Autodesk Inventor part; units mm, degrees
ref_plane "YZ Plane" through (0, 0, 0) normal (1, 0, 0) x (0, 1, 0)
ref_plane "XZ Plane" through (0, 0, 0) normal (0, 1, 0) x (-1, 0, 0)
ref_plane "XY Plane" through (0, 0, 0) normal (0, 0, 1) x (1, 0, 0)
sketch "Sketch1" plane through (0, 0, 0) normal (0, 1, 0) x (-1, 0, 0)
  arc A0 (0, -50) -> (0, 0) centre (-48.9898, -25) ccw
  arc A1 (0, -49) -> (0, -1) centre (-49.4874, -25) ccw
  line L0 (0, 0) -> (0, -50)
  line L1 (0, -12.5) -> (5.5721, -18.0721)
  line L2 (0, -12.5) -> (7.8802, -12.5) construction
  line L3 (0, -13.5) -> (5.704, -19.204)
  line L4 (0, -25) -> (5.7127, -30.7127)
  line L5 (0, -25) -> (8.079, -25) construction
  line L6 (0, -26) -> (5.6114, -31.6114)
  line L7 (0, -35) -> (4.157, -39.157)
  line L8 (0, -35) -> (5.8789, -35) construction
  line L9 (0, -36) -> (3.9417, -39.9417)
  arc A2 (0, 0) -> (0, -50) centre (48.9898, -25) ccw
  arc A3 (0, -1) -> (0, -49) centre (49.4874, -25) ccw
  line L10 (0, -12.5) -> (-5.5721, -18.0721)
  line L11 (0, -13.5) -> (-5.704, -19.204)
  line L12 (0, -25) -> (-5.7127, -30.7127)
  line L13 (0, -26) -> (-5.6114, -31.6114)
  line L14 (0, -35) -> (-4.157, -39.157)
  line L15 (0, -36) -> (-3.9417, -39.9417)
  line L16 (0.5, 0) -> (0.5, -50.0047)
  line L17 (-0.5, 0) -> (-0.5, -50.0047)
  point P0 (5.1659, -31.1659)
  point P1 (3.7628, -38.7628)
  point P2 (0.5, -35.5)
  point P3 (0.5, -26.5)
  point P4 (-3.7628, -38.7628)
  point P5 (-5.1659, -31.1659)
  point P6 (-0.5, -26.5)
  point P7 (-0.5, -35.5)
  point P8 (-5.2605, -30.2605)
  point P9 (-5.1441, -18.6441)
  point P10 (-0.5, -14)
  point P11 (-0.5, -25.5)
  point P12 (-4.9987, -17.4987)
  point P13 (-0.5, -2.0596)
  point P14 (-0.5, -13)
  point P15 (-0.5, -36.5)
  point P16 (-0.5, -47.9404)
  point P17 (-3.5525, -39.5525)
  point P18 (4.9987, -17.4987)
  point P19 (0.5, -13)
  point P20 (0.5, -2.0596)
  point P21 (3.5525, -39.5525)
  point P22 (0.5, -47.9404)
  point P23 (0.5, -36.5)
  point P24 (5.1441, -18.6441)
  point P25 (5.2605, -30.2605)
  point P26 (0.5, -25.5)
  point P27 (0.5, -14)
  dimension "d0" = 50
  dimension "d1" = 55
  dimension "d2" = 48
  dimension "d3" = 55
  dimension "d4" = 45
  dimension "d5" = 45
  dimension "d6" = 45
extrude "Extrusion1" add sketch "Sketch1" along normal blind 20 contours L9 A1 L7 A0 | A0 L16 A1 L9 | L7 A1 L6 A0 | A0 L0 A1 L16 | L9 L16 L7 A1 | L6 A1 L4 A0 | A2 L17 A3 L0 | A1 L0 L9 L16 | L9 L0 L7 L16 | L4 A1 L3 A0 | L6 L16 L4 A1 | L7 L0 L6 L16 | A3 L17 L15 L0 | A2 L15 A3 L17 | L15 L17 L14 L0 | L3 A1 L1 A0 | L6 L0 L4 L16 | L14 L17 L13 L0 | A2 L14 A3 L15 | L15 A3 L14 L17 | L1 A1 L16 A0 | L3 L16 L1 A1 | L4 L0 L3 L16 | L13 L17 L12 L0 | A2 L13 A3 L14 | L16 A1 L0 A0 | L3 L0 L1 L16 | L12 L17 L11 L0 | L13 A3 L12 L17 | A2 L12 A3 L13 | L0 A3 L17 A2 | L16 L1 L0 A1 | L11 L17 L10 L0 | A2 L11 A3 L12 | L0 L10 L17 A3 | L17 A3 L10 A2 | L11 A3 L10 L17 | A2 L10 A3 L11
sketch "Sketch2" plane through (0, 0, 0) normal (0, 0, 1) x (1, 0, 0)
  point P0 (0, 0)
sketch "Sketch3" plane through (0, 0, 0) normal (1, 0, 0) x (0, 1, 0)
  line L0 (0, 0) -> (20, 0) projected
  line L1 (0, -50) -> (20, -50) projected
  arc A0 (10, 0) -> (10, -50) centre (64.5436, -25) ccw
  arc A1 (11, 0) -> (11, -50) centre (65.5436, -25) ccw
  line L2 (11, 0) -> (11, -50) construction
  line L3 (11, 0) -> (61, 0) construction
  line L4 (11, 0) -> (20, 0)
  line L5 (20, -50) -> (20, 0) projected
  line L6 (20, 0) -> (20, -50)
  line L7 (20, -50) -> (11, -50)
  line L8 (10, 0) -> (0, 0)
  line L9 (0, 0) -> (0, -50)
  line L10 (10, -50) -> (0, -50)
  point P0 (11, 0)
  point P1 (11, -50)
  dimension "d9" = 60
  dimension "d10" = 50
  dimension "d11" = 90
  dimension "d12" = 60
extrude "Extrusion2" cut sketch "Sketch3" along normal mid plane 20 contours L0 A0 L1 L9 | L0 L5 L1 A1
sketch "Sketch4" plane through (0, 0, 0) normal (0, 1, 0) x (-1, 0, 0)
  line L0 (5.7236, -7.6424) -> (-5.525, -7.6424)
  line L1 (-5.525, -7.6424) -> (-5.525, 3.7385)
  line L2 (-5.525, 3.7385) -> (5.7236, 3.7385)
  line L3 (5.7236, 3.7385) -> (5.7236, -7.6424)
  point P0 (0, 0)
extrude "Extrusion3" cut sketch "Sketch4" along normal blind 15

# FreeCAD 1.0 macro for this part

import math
import FreeCAD as App
import Part
import Sketcher
Q = App.Units.Quantity


def add_polygon(sketch, points):
    """Adds a closed chain of lines whose ends are joined by coincident constraints."""
    first, n = sketch.GeometryCount, len(points)
    for a, b in zip(points, points[1:] + points[:1]):
        sketch.addGeometry(Part.LineSegment(App.Vector(*a, 0), App.Vector(*b, 0)), False)
    for i in range(n):
        sketch.addConstraint(Sketcher.Constraint("Coincident", first + i, 2, first + (i + 1) % n, 1))

doc = App.newDocument("Part")
body = doc.addObject("PartDesign::Body", "Body")

# Sketch on XZ plane
sketch1 = doc.addObject("Sketcher::SketchObject", "Sketch")
body.addObject(sketch1)
sketch1.AttachmentSupport = (doc.XZ_Plane, [""])
sketch1.MapMode = "FlatFace"
sketch1.addGeometry([
    Part.ArcOfCircle(Part.Circle(App.Vector(-49, -25, 0), App.Vector(0, 0, 1), 55), math.radians(-27), math.radians(27)),  # 0
    Part.ArcOfCircle(Part.Circle(App.Vector(49, -25, 0), App.Vector(0, 0, 1), 55), math.radians(153), math.radians(207)),  # 1
    Part.ArcOfCircle(Part.Circle(App.Vector(49.5, -25, 0), App.Vector(0, 0, 1), 55), math.radians(-164.66), math.radians(-155.35)),  # 2
    Part.LineSegment(App.Vector(-0.5, -47.9, 0), App.Vector(-0.5, -36.5, 0)),  # 3
    Part.LineSegment(App.Vector(-0.5, -36.5, 0), App.Vector(-3.6, -39.6, 0)),  # 4
    Part.LineSegment(App.Vector(-3.8, -38.8, 0), App.Vector(-0.5, -35.5, 0)),  # 5
    Part.LineSegment(App.Vector(-0.5, -35.5, 0), App.Vector(-0.5, -26.5, 0)),  # 6
    Part.LineSegment(App.Vector(-0.5, -26.5, 0), App.Vector(-5.2, -31.2, 0)),  # 7
    Part.ArcOfCircle(Part.Circle(App.Vector(49.5, -25, 0), App.Vector(0, 0, 1), 55), math.radians(-173.56), math.radians(-165.51)),  # 8
    Part.LineSegment(App.Vector(-5.3, -30.3, 0), App.Vector(-0.5, -25.5, 0)),  # 9
    Part.LineSegment(App.Vector(-0.5, -25.5, 0), App.Vector(-0.5, -14, 0)),  # 10
    Part.LineSegment(App.Vector(-0.5, -14, 0), App.Vector(-5.1, -18.6, 0)),  # 11
    Part.ArcOfCircle(Part.Circle(App.Vector(49.5, -25, 0), App.Vector(0, 0, 1), 55), math.radians(173.36), math.radians(185.49)),  # 12
    Part.ArcOfCircle(Part.Circle(App.Vector(-49.5, -25, 0), App.Vector(0, 0, 1), 55), math.radians(-24.65), math.radians(-15.34)),  # 13
    Part.LineSegment(App.Vector(3.6, -39.6, 0), App.Vector(0.5, -36.5, 0)),  # 14
    Part.LineSegment(App.Vector(0.5, -36.5, 0), App.Vector(0.5, -47.9, 0)),  # 15
    Part.LineSegment(App.Vector(0.5, -35.5, 0), App.Vector(3.8, -38.8, 0)),  # 16
    Part.ArcOfCircle(Part.Circle(App.Vector(-49.5, -25, 0), App.Vector(0, 0, 1), 55), math.radians(-14.49), math.radians(-6.44)),  # 17
    Part.LineSegment(App.Vector(5.2, -31.2, 0), App.Vector(0.5, -26.5, 0)),  # 18
    Part.LineSegment(App.Vector(0.5, -26.5, 0), App.Vector(0.5, -35.5, 0)),  # 19
    Part.LineSegment(App.Vector(-5, -17.5, 0), App.Vector(-0.5, -13, 0)),  # 20
    Part.LineSegment(App.Vector(-0.5, -13, 0), App.Vector(-0.5, -2.1, 0)),  # 21
    Part.ArcOfCircle(Part.Circle(App.Vector(49.5, -25, 0), App.Vector(0, 0, 1), 55), math.radians(155.35), math.radians(172.16)),  # 22
    Part.LineSegment(App.Vector(0.5, -14, 0), App.Vector(0.5, -25.5, 0)),  # 23
    Part.LineSegment(App.Vector(0.5, -25.5, 0), App.Vector(5.3, -30.3, 0)),  # 24
    Part.ArcOfCircle(Part.Circle(App.Vector(-49.5, -25, 0), App.Vector(0, 0, 1), 55), math.radians(-5.49), math.radians(6.64)),  # 25
    Part.LineSegment(App.Vector(5.1, -18.6, 0), App.Vector(0.5, -14, 0)),  # 26
    Part.LineSegment(App.Vector(0.5, -2.1, 0), App.Vector(0.5, -13, 0)),  # 27
    Part.LineSegment(App.Vector(0.5, -13, 0), App.Vector(5, -17.5, 0)),  # 28
    Part.ArcOfCircle(Part.Circle(App.Vector(-49.5, -25, 0), App.Vector(0, 0, 1), 55), math.radians(7.84), math.radians(24.65)),  # 29
], False)
sketch1.addConstraint([
    Sketcher.Constraint("Coincident", 0, 1, 1, 2),
    Sketcher.Constraint("Coincident", 1, 1, 0, 2),
    Sketcher.Constraint("Coincident", 2, 2, 3, 1),
    Sketcher.Constraint("Coincident", 3, 2, 4, 1),
    Sketcher.Constraint("Coincident", 4, 2, 2, 1),
    Sketcher.Constraint("Coincident", 5, 2, 6, 1),
    Sketcher.Constraint("Coincident", 6, 2, 7, 1),
    Sketcher.Constraint("Coincident", 7, 2, 8, 1),
    Sketcher.Constraint("Coincident", 8, 2, 5, 1),
    Sketcher.Constraint("Coincident", 9, 2, 10, 1),
    Sketcher.Constraint("Coincident", 10, 2, 11, 1),
    Sketcher.Constraint("Coincident", 11, 2, 12, 1),
    Sketcher.Constraint("Coincident", 12, 2, 9, 1),
    Sketcher.Constraint("Coincident", 13, 2, 14, 1),
    Sketcher.Constraint("Coincident", 14, 2, 15, 1),
    Sketcher.Constraint("Coincident", 15, 2, 13, 1),
    Sketcher.Constraint("Coincident", 16, 2, 17, 1),
    Sketcher.Constraint("Coincident", 17, 2, 18, 1),
    Sketcher.Constraint("Coincident", 18, 2, 19, 1),
    Sketcher.Constraint("Coincident", 19, 2, 16, 1),
    Sketcher.Constraint("Coincident", 20, 2, 21, 1),
    Sketcher.Constraint("Coincident", 21, 2, 22, 1),
    Sketcher.Constraint("Coincident", 22, 2, 20, 1),
    Sketcher.Constraint("Coincident", 23, 2, 24, 1),
    Sketcher.Constraint("Coincident", 24, 2, 25, 1),
    Sketcher.Constraint("Coincident", 25, 2, 26, 1),
    Sketcher.Constraint("Coincident", 26, 2, 23, 1),
    Sketcher.Constraint("Coincident", 27, 2, 28, 1),
    Sketcher.Constraint("Coincident", 28, 2, 29, 1),
    Sketcher.Constraint("Coincident", 29, 2, 27, 1),
    Sketcher.Constraint("Vertical", 3),
    Sketcher.Constraint("Vertical", 6),
    Sketcher.Constraint("Vertical", 10),
    Sketcher.Constraint("Vertical", 15),
    Sketcher.Constraint("Vertical", 19),
    Sketcher.Constraint("Vertical", 21),
    Sketcher.Constraint("Vertical", 23),
    Sketcher.Constraint("Vertical", 27),
    Sketcher.Constraint("Coincident", 1, 1, -1, 1),
    Sketcher.Constraint("Coincident", 8, 3, 2, 3),
    Sketcher.Constraint("Coincident", 12, 3, 2, 3),
    Sketcher.Constraint("Coincident", 17, 3, 13, 3),
    Sketcher.Constraint("Coincident", 22, 3, 2, 3),
    Sketcher.Constraint("Coincident", 25, 3, 13, 3),
    Sketcher.Constraint("Coincident", 29, 3, 13, 3),
    Sketcher.Constraint("Equal", 0, 1),
    Sketcher.Constraint("Equal", 1, 2),
    Sketcher.Constraint("Equal", 2, 8),
    Sketcher.Constraint("Equal", 8, 12),
    Sketcher.Constraint("Equal", 12, 13),
    Sketcher.Constraint("Equal", 13, 17),
    Sketcher.Constraint("Equal", 17, 22),
    Sketcher.Constraint("Equal", 22, 25),
    Sketcher.Constraint("Equal", 25, 29),
    Sketcher.Constraint("Symmetric", 2, 3, 13, 3, -2),
    Sketcher.Constraint("Symmetric", 3, 2, 14, 2, -2),
    Sketcher.Constraint("Symmetric", 6, 2, 18, 2, -2),
    Sketcher.Constraint("Symmetric", 9, 2, 23, 2, -2),
    Sketcher.Constraint("Symmetric", 20, 2, 27, 2, -2),
    Sketcher.Constraint("PointOnObject", 0, 1, -2),
    Sketcher.Constraint("Parallel", 4, 5),
    Sketcher.Constraint("Parallel", 5, 7),
    Sketcher.Constraint("Parallel", 7, 9),
    Sketcher.Constraint("Parallel", 9, 11),
    Sketcher.Constraint("Perpendicular", 11, 14),
    Sketcher.Constraint("Parallel", 14, 16),
    Sketcher.Constraint("Parallel", 16, 18),
    Sketcher.Constraint("Perpendicular", 18, 20),
    Sketcher.Constraint("Perpendicular", 20, 24),
    Sketcher.Constraint("Parallel", 24, 26),
    Sketcher.Constraint("Parallel", 26, 28),
    Sketcher.Constraint("Horizontal", 1, 3, 2, 3),
    Sketcher.Constraint("Horizontal", 4, 2, 13, 2),
    Sketcher.Constraint("Horizontal", 8, 2, 16, 2),
    Sketcher.Constraint("Horizontal", 11, 2, 25, 2),
    Sketcher.Constraint("Vertical", 3, 2, 5, 2),
    Sketcher.Constraint("Vertical", 6, 2, 9, 2),
    Sketcher.Constraint("Vertical", 10, 2, 20, 2),
    Sketcher.Constraint("Radius", 0, Q("55 mm")),
    Sketcher.Constraint("DistanceY", 0, 1, -1, 1, Q("50 mm")),
    Sketcher.Constraint("DistanceY", 6, 1, 6, 2, Q("9 mm")),
    Sketcher.Constraint("DistanceY", 10, 1, 10, 2, Q("11.5 mm")),
    Sketcher.Constraint("DistanceY", 10, 2, -1, 1, Q("14 mm")),
    Sketcher.Constraint("DistanceY", 20, 2, -1, 1, Q("13 mm")),
    Sketcher.Constraint("DistanceY", 3, 2, 5, 2, Q("1 mm")),
    Sketcher.Constraint("DistanceY", 6, 2, 9, 2, Q("1 mm")),
    Sketcher.Constraint("DistanceX", 3, 2, 14, 2, Q("1 mm")),
    Sketcher.Constraint("Distance", 20, Q("6.362 mm")),
])
pad1 = doc.addObject("PartDesign::Pad", "Pad")
body.addObject(pad1)
pad1.Profile = sketch1
pad1.Length = 20
pad1.Reversed = True

# Sketch on YZ plane
sketch2 = doc.addObject("Sketcher::SketchObject", "Sketch001")
body.addObject(sketch2)
sketch2.AttachmentSupport = (doc.YZ_Plane, [""])
sketch2.MapMode = "FlatFace"
sketch2.addGeometry([
    Part.LineSegment(App.Vector(10, 0, 0), App.Vector(0, 0, 0)),  # 0
    Part.LineSegment(App.Vector(0, 0, 0), App.Vector(0, -50, 0)),  # 1
    Part.LineSegment(App.Vector(0, -50, 0), App.Vector(10, -50, 0)),  # 2
    Part.ArcOfCircle(Part.Circle(App.Vector(65, -25, 0), App.Vector(0, 0, 1), 60), math.radians(155), math.radians(205)),  # 3
    Part.LineSegment(App.Vector(20, 0, 0), App.Vector(11, 0, 0)),  # 4
    Part.ArcOfCircle(Part.Circle(App.Vector(66, -25, 0), App.Vector(0, 0, 1), 60), math.radians(155), math.radians(205)),  # 5
    Part.LineSegment(App.Vector(11, -50, 0), App.Vector(20, -50, 0)),  # 6
    Part.LineSegment(App.Vector(20, -50, 0), App.Vector(20, 0, 0)),  # 7
], False)
sketch2.addConstraint([
    Sketcher.Constraint("Coincident", 0, 2, 1, 1),
    Sketcher.Constraint("Coincident", 1, 2, 2, 1),
    Sketcher.Constraint("Coincident", 2, 2, 3, 2),
    Sketcher.Constraint("Coincident", 3, 1, 0, 1),
    Sketcher.Constraint("Coincident", 4, 2, 5, 1),
    Sketcher.Constraint("Coincident", 5, 2, 6, 1),
    Sketcher.Constraint("Coincident", 6, 2, 7, 1),
    Sketcher.Constraint("Coincident", 7, 2, 4, 1),
    Sketcher.Constraint("Horizontal", 0),
    Sketcher.Constraint("Vertical", 1),
    Sketcher.Constraint("Horizontal", 2),
    Sketcher.Constraint("Horizontal", 4),
    Sketcher.Constraint("Horizontal", 6),
    Sketcher.Constraint("Vertical", 7),
    Sketcher.Constraint("Coincident", 0, 2, -1, 1),
    Sketcher.Constraint("Equal", 3, 5),
    Sketcher.Constraint("PointOnObject", 4, 2, -1),
    Sketcher.Constraint("Horizontal", 3, 3, 5, 3),
    Sketcher.Constraint("Horizontal", 2, 2, 5, 2),
    Sketcher.Constraint("Vertical", 2, 2, 3, 1),
    Sketcher.Constraint("Radius", 3, Q("60 mm")),
    Sketcher.Constraint("DistanceY", 1, 2, 1, 1, Q("50 mm")),
    Sketcher.Constraint("DistanceX", 0, 2, 0, 1, Q("10 mm")),
    Sketcher.Constraint("DistanceX", 4, 2, 4, 1, Q("9 mm")),
    Sketcher.Constraint("DistanceX", -1, 1, 4, 2, Q("11 mm")),
])
pocket1 = doc.addObject("PartDesign::Pocket", "Pocket")
body.addObject(pocket1)
pocket1.Profile = sketch2
pocket1.Length = 20
pocket1.Midplane = True

# Sketch on XZ plane
sketch3 = doc.addObject("Sketcher::SketchObject", "Sketch002")
body.addObject(sketch3)
sketch3.AttachmentSupport = (doc.XZ_Plane, [""])
sketch3.MapMode = "FlatFace"
add_polygon(sketch3, [(6, -8), (-6, -8), (-6, 4), (6, 4)])  # lines 0-3
sketch3.addConstraint([
    Sketcher.Constraint("Horizontal", 0),
    Sketcher.Constraint("Vertical", 1),
    Sketcher.Constraint("Horizontal", 2),
    Sketcher.Constraint("Vertical", 3),
    Sketcher.Constraint("DistanceY", 1, 1, 1, 2, Q("11.381 mm")),
    Sketcher.Constraint("DistanceX", 0, 2, 0, 1, Q("11.2486 mm")),
    Sketcher.Constraint("DistanceX", -1, 1, 2, 2, Q("5.525 mm")),
    Sketcher.Constraint("DistanceY", 0, 2, -1, 1, Q("7.6424 mm")),
])
pocket2 = doc.addObject("PartDesign::Pocket", "Pocket001")
body.addObject(pocket2)
pocket2.Profile = sketch3
pocket2.Length = 15

doc.recompute()
